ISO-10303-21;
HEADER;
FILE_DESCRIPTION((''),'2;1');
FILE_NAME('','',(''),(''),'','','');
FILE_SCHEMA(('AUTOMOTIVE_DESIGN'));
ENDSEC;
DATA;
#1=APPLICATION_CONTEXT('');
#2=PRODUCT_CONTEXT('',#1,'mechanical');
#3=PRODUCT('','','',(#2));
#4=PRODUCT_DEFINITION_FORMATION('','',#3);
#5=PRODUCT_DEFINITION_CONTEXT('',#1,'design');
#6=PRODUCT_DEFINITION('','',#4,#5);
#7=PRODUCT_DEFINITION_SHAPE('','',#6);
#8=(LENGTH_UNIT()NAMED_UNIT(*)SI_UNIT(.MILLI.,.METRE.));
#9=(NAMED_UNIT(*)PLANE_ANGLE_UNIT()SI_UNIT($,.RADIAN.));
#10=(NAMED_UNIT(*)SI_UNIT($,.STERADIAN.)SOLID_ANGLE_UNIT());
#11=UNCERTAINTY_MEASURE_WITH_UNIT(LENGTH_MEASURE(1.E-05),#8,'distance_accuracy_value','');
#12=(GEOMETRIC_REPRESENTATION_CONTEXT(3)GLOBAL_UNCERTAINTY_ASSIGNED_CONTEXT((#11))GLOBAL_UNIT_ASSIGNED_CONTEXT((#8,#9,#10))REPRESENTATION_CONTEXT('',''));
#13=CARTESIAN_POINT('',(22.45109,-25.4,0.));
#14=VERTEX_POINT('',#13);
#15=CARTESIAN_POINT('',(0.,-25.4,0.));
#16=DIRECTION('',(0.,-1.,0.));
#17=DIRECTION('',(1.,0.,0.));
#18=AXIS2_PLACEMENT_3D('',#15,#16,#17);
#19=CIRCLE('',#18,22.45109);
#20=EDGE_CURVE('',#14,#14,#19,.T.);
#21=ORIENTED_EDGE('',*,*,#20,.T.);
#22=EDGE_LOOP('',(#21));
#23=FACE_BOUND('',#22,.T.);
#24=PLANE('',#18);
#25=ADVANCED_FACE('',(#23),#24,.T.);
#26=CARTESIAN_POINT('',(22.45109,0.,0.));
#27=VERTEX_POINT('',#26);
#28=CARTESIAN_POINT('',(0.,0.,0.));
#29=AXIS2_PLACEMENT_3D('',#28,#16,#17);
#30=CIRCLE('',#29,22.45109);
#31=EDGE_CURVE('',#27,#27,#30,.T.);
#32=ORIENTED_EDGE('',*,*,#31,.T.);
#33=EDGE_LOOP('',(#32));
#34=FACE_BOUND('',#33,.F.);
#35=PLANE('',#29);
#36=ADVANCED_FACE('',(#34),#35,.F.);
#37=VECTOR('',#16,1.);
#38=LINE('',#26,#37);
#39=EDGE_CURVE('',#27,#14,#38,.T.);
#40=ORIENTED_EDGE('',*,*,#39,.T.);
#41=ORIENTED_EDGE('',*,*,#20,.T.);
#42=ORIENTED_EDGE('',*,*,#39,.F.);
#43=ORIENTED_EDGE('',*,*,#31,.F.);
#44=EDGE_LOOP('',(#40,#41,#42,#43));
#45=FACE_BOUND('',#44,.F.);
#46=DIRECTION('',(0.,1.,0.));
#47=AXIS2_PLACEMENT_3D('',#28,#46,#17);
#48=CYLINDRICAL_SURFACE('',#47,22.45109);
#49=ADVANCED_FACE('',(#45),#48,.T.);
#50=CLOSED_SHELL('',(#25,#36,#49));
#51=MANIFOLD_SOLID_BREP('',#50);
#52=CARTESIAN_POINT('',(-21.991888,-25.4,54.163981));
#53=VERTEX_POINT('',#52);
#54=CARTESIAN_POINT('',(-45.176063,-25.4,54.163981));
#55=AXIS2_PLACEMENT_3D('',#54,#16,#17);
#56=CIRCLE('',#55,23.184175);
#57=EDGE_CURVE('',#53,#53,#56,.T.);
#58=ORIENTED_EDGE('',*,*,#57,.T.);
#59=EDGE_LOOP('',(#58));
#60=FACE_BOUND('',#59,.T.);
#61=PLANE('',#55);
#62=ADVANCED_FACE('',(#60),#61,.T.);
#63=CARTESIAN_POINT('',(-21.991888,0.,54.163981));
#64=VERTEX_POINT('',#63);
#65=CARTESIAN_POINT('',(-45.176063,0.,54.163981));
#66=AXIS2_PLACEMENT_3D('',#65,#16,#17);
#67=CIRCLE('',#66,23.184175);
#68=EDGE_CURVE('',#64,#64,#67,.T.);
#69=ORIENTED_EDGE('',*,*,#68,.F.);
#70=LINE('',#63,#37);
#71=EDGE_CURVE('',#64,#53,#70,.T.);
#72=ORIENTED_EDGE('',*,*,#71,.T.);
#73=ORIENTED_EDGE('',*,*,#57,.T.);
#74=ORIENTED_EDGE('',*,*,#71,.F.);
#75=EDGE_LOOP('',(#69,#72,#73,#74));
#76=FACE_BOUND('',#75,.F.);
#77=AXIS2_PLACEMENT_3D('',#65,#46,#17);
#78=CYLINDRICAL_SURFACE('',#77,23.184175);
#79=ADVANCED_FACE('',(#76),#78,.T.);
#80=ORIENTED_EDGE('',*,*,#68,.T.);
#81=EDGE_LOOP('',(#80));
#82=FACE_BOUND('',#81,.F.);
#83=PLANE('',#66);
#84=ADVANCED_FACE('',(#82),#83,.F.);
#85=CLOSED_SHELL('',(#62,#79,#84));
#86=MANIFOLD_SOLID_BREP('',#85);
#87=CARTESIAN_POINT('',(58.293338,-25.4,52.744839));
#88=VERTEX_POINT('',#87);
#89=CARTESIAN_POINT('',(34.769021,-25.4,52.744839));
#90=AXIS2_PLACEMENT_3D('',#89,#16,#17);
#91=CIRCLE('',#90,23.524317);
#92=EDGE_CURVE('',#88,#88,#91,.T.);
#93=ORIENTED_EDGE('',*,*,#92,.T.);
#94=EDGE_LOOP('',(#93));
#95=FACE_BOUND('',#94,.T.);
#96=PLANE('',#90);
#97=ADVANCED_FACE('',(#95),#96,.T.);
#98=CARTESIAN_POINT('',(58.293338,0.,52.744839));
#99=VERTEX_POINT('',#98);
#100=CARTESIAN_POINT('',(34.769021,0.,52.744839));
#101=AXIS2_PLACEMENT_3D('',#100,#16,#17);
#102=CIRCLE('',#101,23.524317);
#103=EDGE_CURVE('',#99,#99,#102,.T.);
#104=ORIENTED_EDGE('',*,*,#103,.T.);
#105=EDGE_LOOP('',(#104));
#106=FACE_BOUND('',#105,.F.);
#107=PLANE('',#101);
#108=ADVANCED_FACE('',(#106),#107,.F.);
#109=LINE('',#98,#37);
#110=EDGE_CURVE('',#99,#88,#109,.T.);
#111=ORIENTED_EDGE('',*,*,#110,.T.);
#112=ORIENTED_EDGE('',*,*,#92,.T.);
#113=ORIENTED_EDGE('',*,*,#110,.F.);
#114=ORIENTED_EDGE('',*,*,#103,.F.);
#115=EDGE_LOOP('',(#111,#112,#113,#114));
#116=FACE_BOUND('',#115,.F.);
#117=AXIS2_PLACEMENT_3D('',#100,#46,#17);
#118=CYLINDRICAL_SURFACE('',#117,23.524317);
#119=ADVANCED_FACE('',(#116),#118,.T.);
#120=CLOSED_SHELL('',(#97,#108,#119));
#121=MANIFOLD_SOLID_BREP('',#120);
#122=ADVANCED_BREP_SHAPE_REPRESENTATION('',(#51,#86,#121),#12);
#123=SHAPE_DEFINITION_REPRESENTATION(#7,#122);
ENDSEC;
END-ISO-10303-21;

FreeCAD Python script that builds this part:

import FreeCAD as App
import Part
import Sketcher
from FreeCAD import Vector
Q = App.Units.Quantity

doc = App.newDocument("Part")
body = doc.addObject("PartDesign::Body", "Body")
body.AllowCompound = True

sketch1 = body.newObject("Sketcher::SketchObject", "Sketch")
sketch1.AttachmentSupport = (doc.getObject("XZ_Plane"), [""])
sketch1.MapMode = "FlatFace"
sketch1.addGeometry([
    Part.Circle(Vector(0, 0, 0), Vector(0, 0, 1), 22),
    Part.Circle(Vector(-45, 54, 0), Vector(0, 0, 1), 23),
    Part.Circle(Vector(35, 53, 0), Vector(0, 0, 1), 24),
], False)
sketch1.addConstraint([
    Sketcher.Constraint("Coincident", 0, 3, -1, 1),
    Sketcher.Constraint("Diameter", 0, Q("44.90218 mm")),
    Sketcher.Constraint("Diameter", 1, Q("46.36835 mm")),
    Sketcher.Constraint("Diameter", 2, Q("47.048634 mm")),
    Sketcher.Constraint("DistanceY", -1, 1, 1, 3, Q("54.163981 mm")),
    Sketcher.Constraint("DistanceX", -1, 1, 2, 3, Q("34.769021 mm")),
    Sketcher.Constraint("DistanceY", -1, 1, 2, 3, Q("52.744839 mm")),
    Sketcher.Constraint("DistanceX", 1, 3, -1, 1, Q("45.176063 mm")),
])
pad1 = body.newObject("PartDesign::Pad", "Pad")
pad1.Profile = sketch1
pad1.Length = Q("1 in")

doc.recompute()
